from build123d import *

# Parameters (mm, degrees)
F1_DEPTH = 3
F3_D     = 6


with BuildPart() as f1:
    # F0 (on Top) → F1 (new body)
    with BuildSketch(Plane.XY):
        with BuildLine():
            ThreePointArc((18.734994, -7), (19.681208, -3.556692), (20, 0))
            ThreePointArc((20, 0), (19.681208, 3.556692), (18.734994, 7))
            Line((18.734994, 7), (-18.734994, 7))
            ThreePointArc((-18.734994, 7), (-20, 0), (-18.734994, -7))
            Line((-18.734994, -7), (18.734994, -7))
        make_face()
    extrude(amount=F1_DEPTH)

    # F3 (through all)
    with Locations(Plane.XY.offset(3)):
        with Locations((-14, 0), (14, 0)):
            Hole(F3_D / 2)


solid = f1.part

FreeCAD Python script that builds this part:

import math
import FreeCAD as App
import Part
import Sketcher
Q = App.Units.Quantity

doc = App.newDocument("Part")
body = doc.addObject("PartDesign::Body", "Body")

sketch1 = body.newObject("Sketcher::SketchObject", "Sketch")
sketch1.AttachmentSupport = (doc.getObject("XY_Plane"), [""])
sketch1.MapMode = "FlatFace"
sketch1.addGeometry(Part.ArcOfCircle(Part.Circle(App.Vector(0, 0, 0), App.Vector(0, 0, 1), 20), math.radians(-20), math.radians(0)), False)
sketch1.addGeometry(Part.ArcOfCircle(Part.Circle(App.Vector(0, 0, 0), App.Vector(0, 0, 1), 20), math.radians(0), math.radians(20)), False)
sketch1.addGeometry(Part.LineSegment(App.Vector(19, 7, 0), App.Vector(-19, 7, 0)), False)
sketch1.addGeometry(Part.ArcOfCircle(Part.Circle(App.Vector(0, 0, 0), App.Vector(0, 0, 1), 20), math.radians(160), math.radians(200)), False)
sketch1.addGeometry(Part.LineSegment(App.Vector(-19, -7, 0), App.Vector(19, -7, 0)), False)
sketch1.addConstraint(Sketcher.Constraint("Tangent", 0, 2, 1, 1))
sketch1.addConstraint(Sketcher.Constraint("Coincident", 1, 2, 2, 1))
sketch1.addConstraint(Sketcher.Constraint("Coincident", 2, 2, 3, 1))
sketch1.addConstraint(Sketcher.Constraint("Coincident", 3, 2, 4, 1))
sketch1.addConstraint(Sketcher.Constraint("Coincident", 4, 2, 0, 1))
sketch1.addConstraint(Sketcher.Constraint("Horizontal", 2))
sketch1.addConstraint(Sketcher.Constraint("Horizontal", 4))
sketch1.addConstraint(Sketcher.Constraint("Coincident", 0, 3, -1, 1))
sketch1.addConstraint(Sketcher.Constraint("Coincident", 3, 3, -1, 1))
sketch1.addConstraint(Sketcher.Constraint("Equal", 0, 1))
sketch1.addConstraint(Sketcher.Constraint("Symmetric", 1, 2, 3, 2, -1, 1))
sketch1.addConstraint(Sketcher.Constraint("PointOnObject", 0, 2, -1))
sketch1.addConstraint(Sketcher.Constraint("Radius", 3, Q("20 mm")))
sketch1.addConstraint(Sketcher.Constraint("DistanceY", -1, 1, 1, 2, Q("7 mm")))
pad1 = body.newObject("PartDesign::Pad", "Pad")
pad1.Profile = sketch1
pad1.Length = 3

sketch2 = body.newObject("Sketcher::SketchObject", "Sketch001")
sketch2.AttachmentSupport = (doc.getObject("XY_Plane"), [""])
sketch2.MapMode = "FlatFace"
sketch2.AttachmentOffset = App.Placement(App.Vector(0, 0, 3), App.Rotation())
sketch2.addGeometry(Part.Circle(App.Vector(-14, 0, 0), App.Vector(0, 0, 1), 3), False)
sketch2.addGeometry(Part.Circle(App.Vector(14, 0, 0), App.Vector(0, 0, 1), 3), False)
sketch2.addConstraint(Sketcher.Constraint("Equal", 0, 1))
sketch2.addConstraint(Sketcher.Constraint("Symmetric", 0, 3, 1, 3, -1, 1))
sketch2.addConstraint(Sketcher.Constraint("PointOnObject", 0, 3, -1))
sketch2.addConstraint(Sketcher.Constraint("Diameter", 0, Q("6 mm")))
sketch2.addConstraint(Sketcher.Constraint("DistanceX", 0, 3, -1, 1, Q("14 mm")))
doc.recompute()
hole = body.newObject("PartDesign::Hole", "Hole")
hole.Profile = sketch2
hole.ThreadType = "None"
hole.Diameter = 6
hole.DepthType = "ThroughAll"

doc.recompute()
